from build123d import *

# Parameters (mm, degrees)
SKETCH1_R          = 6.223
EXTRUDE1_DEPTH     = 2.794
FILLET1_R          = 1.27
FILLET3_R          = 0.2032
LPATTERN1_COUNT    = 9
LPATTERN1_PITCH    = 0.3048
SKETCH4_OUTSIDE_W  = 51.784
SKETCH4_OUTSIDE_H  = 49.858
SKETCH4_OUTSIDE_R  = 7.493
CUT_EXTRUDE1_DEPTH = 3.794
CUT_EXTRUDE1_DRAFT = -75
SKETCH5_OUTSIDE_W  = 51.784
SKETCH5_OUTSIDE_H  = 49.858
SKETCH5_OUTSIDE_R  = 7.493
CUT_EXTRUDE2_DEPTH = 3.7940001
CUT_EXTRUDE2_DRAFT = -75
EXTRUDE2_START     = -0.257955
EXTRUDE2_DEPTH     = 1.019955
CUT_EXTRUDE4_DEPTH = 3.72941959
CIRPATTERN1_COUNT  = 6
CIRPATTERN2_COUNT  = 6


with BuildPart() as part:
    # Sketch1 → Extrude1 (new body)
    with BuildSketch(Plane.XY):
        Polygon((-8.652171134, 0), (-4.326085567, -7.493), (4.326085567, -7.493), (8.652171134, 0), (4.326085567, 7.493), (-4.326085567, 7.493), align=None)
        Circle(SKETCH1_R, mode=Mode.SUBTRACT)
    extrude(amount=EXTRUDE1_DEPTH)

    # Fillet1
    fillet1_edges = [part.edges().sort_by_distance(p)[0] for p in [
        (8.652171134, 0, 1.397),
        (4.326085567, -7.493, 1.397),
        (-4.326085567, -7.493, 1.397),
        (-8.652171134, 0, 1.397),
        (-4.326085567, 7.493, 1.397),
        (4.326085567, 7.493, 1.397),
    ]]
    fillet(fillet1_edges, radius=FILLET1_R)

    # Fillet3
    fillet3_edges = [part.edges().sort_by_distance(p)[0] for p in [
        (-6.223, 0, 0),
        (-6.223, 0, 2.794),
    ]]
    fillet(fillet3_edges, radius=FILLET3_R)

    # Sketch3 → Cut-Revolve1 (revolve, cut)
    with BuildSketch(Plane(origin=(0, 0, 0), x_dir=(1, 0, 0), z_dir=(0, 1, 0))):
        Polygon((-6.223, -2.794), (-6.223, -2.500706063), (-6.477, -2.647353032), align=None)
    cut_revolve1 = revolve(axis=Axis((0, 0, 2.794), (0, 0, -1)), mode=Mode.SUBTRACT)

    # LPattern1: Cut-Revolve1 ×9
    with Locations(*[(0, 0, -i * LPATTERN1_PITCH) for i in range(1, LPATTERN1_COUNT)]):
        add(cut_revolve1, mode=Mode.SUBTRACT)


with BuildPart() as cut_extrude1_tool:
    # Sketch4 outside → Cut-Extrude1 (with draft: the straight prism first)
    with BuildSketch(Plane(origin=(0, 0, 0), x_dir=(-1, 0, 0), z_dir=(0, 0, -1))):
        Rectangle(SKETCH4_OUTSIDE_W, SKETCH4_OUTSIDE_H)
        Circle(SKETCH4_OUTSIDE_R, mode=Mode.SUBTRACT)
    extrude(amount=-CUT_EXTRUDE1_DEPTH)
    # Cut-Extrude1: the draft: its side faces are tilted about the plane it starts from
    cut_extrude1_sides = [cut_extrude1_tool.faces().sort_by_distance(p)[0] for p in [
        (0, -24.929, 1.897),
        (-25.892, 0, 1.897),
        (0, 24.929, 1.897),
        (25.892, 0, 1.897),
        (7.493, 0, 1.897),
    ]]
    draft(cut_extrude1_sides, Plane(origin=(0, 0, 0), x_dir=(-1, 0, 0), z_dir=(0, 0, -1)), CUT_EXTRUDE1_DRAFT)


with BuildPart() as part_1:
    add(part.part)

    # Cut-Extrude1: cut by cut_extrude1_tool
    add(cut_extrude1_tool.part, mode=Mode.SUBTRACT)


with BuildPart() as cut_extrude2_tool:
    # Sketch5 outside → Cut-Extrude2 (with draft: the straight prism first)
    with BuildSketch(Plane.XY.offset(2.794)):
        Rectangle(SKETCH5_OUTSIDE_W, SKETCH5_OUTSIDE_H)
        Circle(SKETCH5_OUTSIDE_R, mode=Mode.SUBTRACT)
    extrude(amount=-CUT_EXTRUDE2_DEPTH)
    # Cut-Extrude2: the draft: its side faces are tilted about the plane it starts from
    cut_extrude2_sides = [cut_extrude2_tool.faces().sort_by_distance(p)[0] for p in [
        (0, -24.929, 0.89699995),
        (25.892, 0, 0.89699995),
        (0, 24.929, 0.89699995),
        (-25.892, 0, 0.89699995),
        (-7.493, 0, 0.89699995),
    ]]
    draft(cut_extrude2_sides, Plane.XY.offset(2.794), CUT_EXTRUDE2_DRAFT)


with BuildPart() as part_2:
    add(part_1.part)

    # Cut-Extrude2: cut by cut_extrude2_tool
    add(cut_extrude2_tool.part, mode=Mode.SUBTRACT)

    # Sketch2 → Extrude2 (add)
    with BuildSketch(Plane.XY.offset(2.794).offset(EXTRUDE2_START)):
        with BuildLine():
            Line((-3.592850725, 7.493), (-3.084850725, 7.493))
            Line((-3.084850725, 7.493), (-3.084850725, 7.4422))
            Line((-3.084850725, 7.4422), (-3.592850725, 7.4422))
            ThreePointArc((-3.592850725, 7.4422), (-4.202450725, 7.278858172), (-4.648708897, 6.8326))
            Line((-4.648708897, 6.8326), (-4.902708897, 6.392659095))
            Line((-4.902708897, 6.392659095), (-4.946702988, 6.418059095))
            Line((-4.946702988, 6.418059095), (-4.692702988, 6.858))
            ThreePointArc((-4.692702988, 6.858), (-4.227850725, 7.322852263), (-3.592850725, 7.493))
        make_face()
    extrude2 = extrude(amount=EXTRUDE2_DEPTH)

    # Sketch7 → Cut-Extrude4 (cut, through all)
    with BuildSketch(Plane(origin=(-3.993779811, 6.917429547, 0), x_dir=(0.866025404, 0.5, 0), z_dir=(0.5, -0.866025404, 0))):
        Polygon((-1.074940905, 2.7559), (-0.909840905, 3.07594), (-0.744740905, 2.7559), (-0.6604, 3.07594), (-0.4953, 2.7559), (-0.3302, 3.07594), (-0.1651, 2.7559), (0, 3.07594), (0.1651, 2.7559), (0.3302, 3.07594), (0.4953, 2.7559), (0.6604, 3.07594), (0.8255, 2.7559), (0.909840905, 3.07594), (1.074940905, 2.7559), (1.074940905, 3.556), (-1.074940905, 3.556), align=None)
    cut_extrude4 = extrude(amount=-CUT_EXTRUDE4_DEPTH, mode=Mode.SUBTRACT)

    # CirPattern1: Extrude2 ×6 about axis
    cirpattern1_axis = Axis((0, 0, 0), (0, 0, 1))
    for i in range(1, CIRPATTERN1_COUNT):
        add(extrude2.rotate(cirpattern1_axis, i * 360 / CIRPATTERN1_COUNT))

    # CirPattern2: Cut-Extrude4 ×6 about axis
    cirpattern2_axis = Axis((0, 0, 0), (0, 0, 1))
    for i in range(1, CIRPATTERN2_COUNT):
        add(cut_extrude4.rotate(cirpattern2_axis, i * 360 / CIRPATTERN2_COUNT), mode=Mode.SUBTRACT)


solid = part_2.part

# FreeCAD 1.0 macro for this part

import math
import FreeCAD as App
import Part
import Sketcher

V = App.Vector
Q = App.Units.Quantity


def edges_at(feature, points):
    """Names of the edges that pass closest to the given points."""
    edges = feature.Shape.Edges
    near = lambda p: min(range(len(edges)), key=lambda i: edges[i].distToShape(Part.Vertex(*p))[0])
    return sorted({f"Edge{near(p) + 1}" for p in points})


def faces_at(feature, points):
    """Names of the faces that lie closest to the given points."""
    faces = feature.Shape.Faces
    near = lambda p: min(range(len(faces)), key=lambda i: faces[i].distToShape(Part.Vertex(*p))[0])
    return sorted({f"Face{near(p) + 1}" for p in points})


def add_polygon(sketch, points):
    """Adds a closed chain of lines whose ends are joined by coincident constraints."""
    first, n = sketch.GeometryCount, len(points)
    for a, b in zip(points, points[1:] + points[:1]):
        sketch.addGeometry(Part.LineSegment(App.Vector(*a, 0), App.Vector(*b, 0)), False)
    for i in range(n):
        sketch.addConstraint(Sketcher.Constraint("Coincident", first + i, 2, first + (i + 1) % n, 1))

doc = App.newDocument("Part")
body = doc.addObject("PartDesign::Body", "Body")

sketch1 = body.newObject("Sketcher::SketchObject", "Sketch")
sketch1.AttachmentSupport = (doc.getObject("XY_Plane"), [""])
sketch1.MapMode = "FlatFace"
add_polygon(sketch1, [(-9, 0), (-4, -7), (4, -7), (9, 0), (4, 7), (-4, 7)])
sketch1.addGeometry(Part.Circle(V(0, 0, 0), V(0, 0, 1), 6), False)
sketch1.addConstraint([
    Sketcher.Constraint("Horizontal", 1),
    Sketcher.Constraint("Horizontal", 4),
    Sketcher.Constraint("Coincident", 6, 3, -1, 1),
    Sketcher.Constraint("Symmetric", 0, 2, 3, 2, -1, 1),
    Sketcher.Constraint("Symmetric", 2, 2, 5, 2, -1, 1),
    Sketcher.Constraint("PointOnObject", 2, 2, -1),
    Sketcher.Constraint("Parallel", 2, 5),
    Sketcher.Constraint("Vertical", 1, 2, 3, 2),
    Sketcher.Constraint("Diameter", 6, Q("0.49 in")),
    Sketcher.Constraint("Angle", 0, Q("-60 deg")),
    Sketcher.Constraint("DistanceY", 1, 2, 3, 2, Q("0.59 in")),
    Sketcher.Constraint("DistanceX", 1, 1, 1, 2, Q("8.652171 mm")),
])
pad1 = body.newObject("PartDesign::Pad", "Pad")
pad1.Profile = sketch1
pad1.Length = Q("0.11 in")
doc.recompute()

fillet = body.newObject("PartDesign::Fillet", "Fillet")
fillet.Base = (pad1, edges_at(pad1, [
    (8.652, 0, 1.397),
    (4.326, -7.493, 1.397),
    (-4.326, -7.493, 1.397),
    (-8.652, 0, 1.397),
    (-4.326, 7.493, 1.397),
    (4.326, 7.493, 1.397),
]))
fillet.Radius = Q("0.05 in")
doc.recompute()

fillet2 = body.newObject("PartDesign::Fillet", "Fillet001")
fillet2.Base = (fillet, edges_at(fillet, [(-6.223, 0, 0), (-6.223, 0, 2.794)]))
fillet2.Radius = Q("0.008 in")

sketch2 = body.newObject("Sketcher::SketchObject", "Sketch001")
sketch2.AttachmentSupport = (doc.getObject("XZ_Plane"), [""])
sketch2.MapMode = "FlatFace"
add_polygon(sketch2, [(-6.22, 2.79), (-6.22, 2.5), (-6.48, 2.65)])
sketch2.addConstraint([
    Sketcher.Constraint("Vertical", 0),
    Sketcher.Constraint("Equal", 1, 2),
    Sketcher.Constraint("Angle", 1, Q("150 deg")),
    Sketcher.Constraint("DistanceY", -1, 1, 2, 2, Q("0.11 in")),
    Sketcher.Constraint("DistanceX", 1, 2, 0, 2, Q("0.01 in")),
    Sketcher.Constraint("DistanceX", 0, 2, -1, 1, Q("0.245 in")),
])
groove = body.newObject("PartDesign::Groove", "Groove")
groove.Profile = sketch2
groove.ReferenceAxis = (sketch2, ["V_Axis"])
groove.Angle = 360
doc.recompute()

linearpattern = body.newObject("PartDesign::LinearPattern", "LinearPattern")
linearpattern.Originals = [groove]
linearpattern.Direction = (doc.getObject("Z_Axis"), [""])
linearpattern.Mode = "offset"
linearpattern.Offset = Q("0.012 in")
linearpattern.Occurrences = 9
linearpattern.Reversed = True
body.Tip = linearpattern
body2 = doc.addObject("PartDesign::Body", "Body001")

sketch3 = body2.newObject("Sketcher::SketchObject", "Sketch002")
sketch3.AttachmentSupport = (doc.getObject("XY_Plane001"), [""])
sketch3.MapMode = "FlatFace"
add_polygon(sketch3, [(26, 25), (26, -25), (-26, -25), (-26, 25)])
sketch3.addGeometry(Part.Circle(V(0, 0, 0), V(0, 0, 1), 7), False)
sketch3.addConstraint([
    Sketcher.Constraint("Vertical", 0),
    Sketcher.Constraint("Horizontal", 1),
    Sketcher.Constraint("Vertical", 2),
    Sketcher.Constraint("Horizontal", 3),
    Sketcher.Constraint("Coincident", 4, 3, -1, 1),
    Sketcher.Constraint("Symmetric", 0, 2, 2, 2, -1, 1),
    Sketcher.Constraint("Diameter", 4, Q("0.59 in")),
    Sketcher.Constraint("DistanceX", 1, 2, 1, 1, Q("51.784 mm")),
    Sketcher.Constraint("DistanceY", 0, 2, 0, 1, Q("49.858 mm")),
])
pad2 = body2.newObject("PartDesign::Pad", "Pad001")
pad2.Profile = sketch3
pad2.Length = 3.794
doc.recompute()

draft = body2.newObject("PartDesign::Draft", "Draft")
draft.Base = (pad2, faces_at(pad2, [
    (0, -24.929, 1.897),
    (-25.892, 0, 1.897),
    (0, 24.929, 1.897),
    (25.892, 0, 1.897),
    (7.493, 0, 1.897),
]))
draft.NeutralPlane = (doc.getObject("XY_Plane001"), [""])
draft.Angle = 75
draft.Reversed = False
doc.recompute()

boolean = body.newObject("PartDesign::Boolean", "Boolean")
boolean.Type = "Cut"
boolean.addObjects([body2])
body3 = doc.addObject("PartDesign::Body", "Body002")

sketch4 = body3.newObject("Sketcher::SketchObject", "Sketch003")
sketch4.AttachmentSupport = (doc.getObject("XY_Plane002"), [""])
sketch4.MapMode = "FlatFace"
sketch4.AttachmentOffset = App.Placement(V(0, 0, 0.11 * 25.4), App.Rotation())
add_polygon(sketch4, [(-26, 25), (-26, -25), (26, -25), (26, 25)])
sketch4.addGeometry(Part.Circle(V(0, 0, 0), V(0, 0, 1), 7), False)
sketch4.addConstraint([
    Sketcher.Constraint("Vertical", 0),
    Sketcher.Constraint("Horizontal", 1),
    Sketcher.Constraint("Vertical", 2),
    Sketcher.Constraint("Horizontal", 3),
    Sketcher.Constraint("Coincident", 4, 3, -1, 1),
    Sketcher.Constraint("Symmetric", 0, 2, 2, 2, -1, 1),
    Sketcher.Constraint("Diameter", 4, Q("0.59 in")),
    Sketcher.Constraint("DistanceX", 1, 1, 1, 2, Q("51.784 mm")),
    Sketcher.Constraint("DistanceY", 0, 2, 0, 1, Q("49.858 mm")),
])
pad3 = body3.newObject("PartDesign::Pad", "Pad002")
pad3.Profile = sketch4
pad3.Length = 3.794
pad3.Reversed = True
doc.recompute()

datumplane = body3.newObject("PartDesign::Plane", "DatumPlane")
datumplane.AttachmentSupport = (doc.getObject("XY_Plane002"), [""])
datumplane.MapMode = "FlatFace"
datumplane.AttachmentOffset = App.Placement(V(0, 0, 0.11 * 25.4), App.Rotation())
draft2 = body3.newObject("PartDesign::Draft", "Draft001")
draft2.Base = (pad3, faces_at(pad3, [
    (0, -24.929, 0.897),
    (25.892, 0, 0.897),
    (0, 24.929, 0.897),
    (-25.892, 0, 0.897),
    (-7.493, 0, 0.897),
]))
draft2.NeutralPlane = (datumplane, [""])
draft2.Angle = 75
draft2.Reversed = True
doc.recompute()

boolean2 = body.newObject("PartDesign::Boolean", "Boolean001")
boolean2.Type = "Cut"
boolean2.addObjects([body3])

sketch5 = body.newObject("Sketcher::SketchObject", "Sketch004")
sketch5.AttachmentSupport = (doc.getObject("XY_Plane"), [""])
sketch5.MapMode = "FlatFace"
sketch5.AttachmentOffset = App.Placement(V(0, 0, 2.536045), App.Rotation())
sketch5.addGeometry([
    Part.LineSegment(V(-3.08, 7.49, 0), V(-3.59, 7.49, 0)),
    Part.ArcOfCircle(Part.Circle(V(-3.59, 6.22, 0), V(0, 0, 1), 1.27), math.radians(90), math.radians(150)),
    Part.LineSegment(V(-4.69, 6.86, 0), V(-4.95, 6.42, 0)),
    Part.LineSegment(V(-4.95, 6.42, 0), V(-4.9, 6.39, 0)),
    Part.LineSegment(V(-4.9, 6.39, 0), V(-4.65, 6.83, 0)),
    Part.ArcOfCircle(Part.Circle(V(-3.59, 6.22, 0), V(0, 0, 1), 1.22), math.radians(90), math.radians(150)),
    Part.LineSegment(V(-3.59, 7.44, 0), V(-3.08, 7.44, 0)),
    Part.LineSegment(V(-3.08, 7.44, 0), V(-3.08, 7.49, 0)),
], False)
sketch5.addConstraint([
    Sketcher.Constraint("Tangent", 0, 2, 1, 1),
    Sketcher.Constraint("Tangent", 1, 2, 2, 1),
    Sketcher.Constraint("Coincident", 2, 2, 3, 1),
    Sketcher.Constraint("Coincident", 3, 2, 4, 1),
    Sketcher.Constraint("Tangent", 4, 2, 5, 2),
    Sketcher.Constraint("Tangent", 5, 1, 6, 1),
    Sketcher.Constraint("Coincident", 6, 2, 7, 1),
    Sketcher.Constraint("Coincident", 7, 2, 0, 1),
    Sketcher.Constraint("Horizontal", 0),
    Sketcher.Constraint("Horizontal", 6),
    Sketcher.Constraint("Vertical", 7),
    Sketcher.Constraint("Coincident", 5, 3, 1, 3),
    Sketcher.Constraint("Perpendicular", 2, 3),
    Sketcher.Constraint("Perpendicular", 3, 4),
    Sketcher.Constraint("Radius", 1, Q("0.05 in")),
    Sketcher.Constraint("Angle", 2, Q("-120 deg")),
    Sketcher.Constraint("Radius", 5, Q("0.048 in")),
    Sketcher.Constraint("DistanceX", 0, 2, 0, 1, Q("0.02 in")),
    Sketcher.Constraint("Distance", 2, Q("0.02 in")),
    Sketcher.Constraint("DistanceY", -1, 1, 1, 2, Q("0.27 in")),
    Sketcher.Constraint("DistanceX", 1, 3, -1, 1, Q("3.592851 mm")),
])
pad4 = body.newObject("PartDesign::Pad", "Pad003")
pad4.Profile = sketch5
pad4.Length = 1.019955

sketch6 = body.newObject("Sketcher::SketchObject", "Sketch005")
sketch6.Placement = App.Placement(V(-3.99378, 6.91743, 0), App.Rotation(V(0.866025404, 0.5, 0), V(0, 0, 1), V(0.5, -0.866025404, 0), "ZXY"))
add_polygon(sketch6, [(-1.07, 2.76), (-0.91, 3.08), (-0.74, 2.76), (-0.66, 3.08), (-0.5, 2.76), (-0.33, 3.08), (-0.17, 2.76), (0, 3.08), (0.17, 2.76), (0.33, 3.08), (0.5, 2.76), (0.66, 3.08), (0.83, 2.76), (0.91, 3.08), (1.07, 2.76), (1.07, 3.56), (-1.07, 3.56)])
sketch6.addConstraint([
    Sketcher.Constraint("Vertical", 14),
    Sketcher.Constraint("Horizontal", 15),
    Sketcher.Constraint("Vertical", 16),
    Sketcher.Constraint("Symmetric", 5, 2, 7, 2, -2),
    Sketcher.Constraint("Symmetric", 4, 2, 8, 2, -2),
    Sketcher.Constraint("Symmetric", 3, 2, 9, 2, -2),
    Sketcher.Constraint("Symmetric", 2, 2, 10, 2, -2),
    Sketcher.Constraint("Symmetric", 0, 2, 12, 2, -2),
    Sketcher.Constraint("Symmetric", 13, 2, 16, 2, -2),
    Sketcher.Constraint("PointOnObject", 6, 2, -2),
    Sketcher.Constraint("Parallel", 1, 3),
    Sketcher.Constraint("Parallel", 0, 4),
    Sketcher.Constraint("Parallel", 3, 5),
    Sketcher.Constraint("Parallel", 4, 6),
    Sketcher.Constraint("Parallel", 5, 7),
    Sketcher.Constraint("Parallel", 9, 11),
    Sketcher.Constraint("Parallel", 2, 12),
    Sketcher.Constraint("Horizontal", 0, 2, 2, 2),
    Sketcher.Constraint("Horizontal", 1, 2, 3, 2),
    Sketcher.Constraint("Horizontal", 2, 2, 4, 2),
    Sketcher.Constraint("Horizontal", 3, 2, 5, 2),
    Sketcher.Constraint("Horizontal", 4, 2, 6, 2),
    Sketcher.Constraint("Horizontal", 11, 2, 13, 2),
    Sketcher.Constraint("DistanceY", -1, 1, 14, 2, Q("0.14 in")),
    Sketcher.Constraint("DistanceY", 14, 1, 14, 2, Q("0.0315 in")),
    Sketcher.Constraint("DistanceX", 2, 2, -1, 1, Q("0.026 in")),
    Sketcher.Constraint("DistanceY", -1, 1, 0, 2, Q("0.1211 in")),
    Sketcher.Constraint("DistanceX", 15, 2, 15, 1, Q("2.149882 mm")),
])
pocket1 = body.newObject("PartDesign::Pocket", "Pocket")
pocket1.Profile = sketch6
pocket1.Type = "ThroughAll"
doc.recompute()

polarpattern = body.newObject("PartDesign::PolarPattern", "PolarPattern")
polarpattern.Originals = [pad4]
polarpattern.Axis = (doc.getObject("Z_Axis"), [""])
polarpattern.Angle = 360
polarpattern.Occurrences = 6
body.Tip = polarpattern
doc.recompute()

polarpattern2 = body.newObject("PartDesign::PolarPattern", "PolarPattern001")
polarpattern2.Originals = [pocket1]
polarpattern2.Axis = (doc.getObject("Z_Axis"), [""])
polarpattern2.Angle = 360
polarpattern2.Occurrences = 6
body.Tip = polarpattern2

doc.recompute()
